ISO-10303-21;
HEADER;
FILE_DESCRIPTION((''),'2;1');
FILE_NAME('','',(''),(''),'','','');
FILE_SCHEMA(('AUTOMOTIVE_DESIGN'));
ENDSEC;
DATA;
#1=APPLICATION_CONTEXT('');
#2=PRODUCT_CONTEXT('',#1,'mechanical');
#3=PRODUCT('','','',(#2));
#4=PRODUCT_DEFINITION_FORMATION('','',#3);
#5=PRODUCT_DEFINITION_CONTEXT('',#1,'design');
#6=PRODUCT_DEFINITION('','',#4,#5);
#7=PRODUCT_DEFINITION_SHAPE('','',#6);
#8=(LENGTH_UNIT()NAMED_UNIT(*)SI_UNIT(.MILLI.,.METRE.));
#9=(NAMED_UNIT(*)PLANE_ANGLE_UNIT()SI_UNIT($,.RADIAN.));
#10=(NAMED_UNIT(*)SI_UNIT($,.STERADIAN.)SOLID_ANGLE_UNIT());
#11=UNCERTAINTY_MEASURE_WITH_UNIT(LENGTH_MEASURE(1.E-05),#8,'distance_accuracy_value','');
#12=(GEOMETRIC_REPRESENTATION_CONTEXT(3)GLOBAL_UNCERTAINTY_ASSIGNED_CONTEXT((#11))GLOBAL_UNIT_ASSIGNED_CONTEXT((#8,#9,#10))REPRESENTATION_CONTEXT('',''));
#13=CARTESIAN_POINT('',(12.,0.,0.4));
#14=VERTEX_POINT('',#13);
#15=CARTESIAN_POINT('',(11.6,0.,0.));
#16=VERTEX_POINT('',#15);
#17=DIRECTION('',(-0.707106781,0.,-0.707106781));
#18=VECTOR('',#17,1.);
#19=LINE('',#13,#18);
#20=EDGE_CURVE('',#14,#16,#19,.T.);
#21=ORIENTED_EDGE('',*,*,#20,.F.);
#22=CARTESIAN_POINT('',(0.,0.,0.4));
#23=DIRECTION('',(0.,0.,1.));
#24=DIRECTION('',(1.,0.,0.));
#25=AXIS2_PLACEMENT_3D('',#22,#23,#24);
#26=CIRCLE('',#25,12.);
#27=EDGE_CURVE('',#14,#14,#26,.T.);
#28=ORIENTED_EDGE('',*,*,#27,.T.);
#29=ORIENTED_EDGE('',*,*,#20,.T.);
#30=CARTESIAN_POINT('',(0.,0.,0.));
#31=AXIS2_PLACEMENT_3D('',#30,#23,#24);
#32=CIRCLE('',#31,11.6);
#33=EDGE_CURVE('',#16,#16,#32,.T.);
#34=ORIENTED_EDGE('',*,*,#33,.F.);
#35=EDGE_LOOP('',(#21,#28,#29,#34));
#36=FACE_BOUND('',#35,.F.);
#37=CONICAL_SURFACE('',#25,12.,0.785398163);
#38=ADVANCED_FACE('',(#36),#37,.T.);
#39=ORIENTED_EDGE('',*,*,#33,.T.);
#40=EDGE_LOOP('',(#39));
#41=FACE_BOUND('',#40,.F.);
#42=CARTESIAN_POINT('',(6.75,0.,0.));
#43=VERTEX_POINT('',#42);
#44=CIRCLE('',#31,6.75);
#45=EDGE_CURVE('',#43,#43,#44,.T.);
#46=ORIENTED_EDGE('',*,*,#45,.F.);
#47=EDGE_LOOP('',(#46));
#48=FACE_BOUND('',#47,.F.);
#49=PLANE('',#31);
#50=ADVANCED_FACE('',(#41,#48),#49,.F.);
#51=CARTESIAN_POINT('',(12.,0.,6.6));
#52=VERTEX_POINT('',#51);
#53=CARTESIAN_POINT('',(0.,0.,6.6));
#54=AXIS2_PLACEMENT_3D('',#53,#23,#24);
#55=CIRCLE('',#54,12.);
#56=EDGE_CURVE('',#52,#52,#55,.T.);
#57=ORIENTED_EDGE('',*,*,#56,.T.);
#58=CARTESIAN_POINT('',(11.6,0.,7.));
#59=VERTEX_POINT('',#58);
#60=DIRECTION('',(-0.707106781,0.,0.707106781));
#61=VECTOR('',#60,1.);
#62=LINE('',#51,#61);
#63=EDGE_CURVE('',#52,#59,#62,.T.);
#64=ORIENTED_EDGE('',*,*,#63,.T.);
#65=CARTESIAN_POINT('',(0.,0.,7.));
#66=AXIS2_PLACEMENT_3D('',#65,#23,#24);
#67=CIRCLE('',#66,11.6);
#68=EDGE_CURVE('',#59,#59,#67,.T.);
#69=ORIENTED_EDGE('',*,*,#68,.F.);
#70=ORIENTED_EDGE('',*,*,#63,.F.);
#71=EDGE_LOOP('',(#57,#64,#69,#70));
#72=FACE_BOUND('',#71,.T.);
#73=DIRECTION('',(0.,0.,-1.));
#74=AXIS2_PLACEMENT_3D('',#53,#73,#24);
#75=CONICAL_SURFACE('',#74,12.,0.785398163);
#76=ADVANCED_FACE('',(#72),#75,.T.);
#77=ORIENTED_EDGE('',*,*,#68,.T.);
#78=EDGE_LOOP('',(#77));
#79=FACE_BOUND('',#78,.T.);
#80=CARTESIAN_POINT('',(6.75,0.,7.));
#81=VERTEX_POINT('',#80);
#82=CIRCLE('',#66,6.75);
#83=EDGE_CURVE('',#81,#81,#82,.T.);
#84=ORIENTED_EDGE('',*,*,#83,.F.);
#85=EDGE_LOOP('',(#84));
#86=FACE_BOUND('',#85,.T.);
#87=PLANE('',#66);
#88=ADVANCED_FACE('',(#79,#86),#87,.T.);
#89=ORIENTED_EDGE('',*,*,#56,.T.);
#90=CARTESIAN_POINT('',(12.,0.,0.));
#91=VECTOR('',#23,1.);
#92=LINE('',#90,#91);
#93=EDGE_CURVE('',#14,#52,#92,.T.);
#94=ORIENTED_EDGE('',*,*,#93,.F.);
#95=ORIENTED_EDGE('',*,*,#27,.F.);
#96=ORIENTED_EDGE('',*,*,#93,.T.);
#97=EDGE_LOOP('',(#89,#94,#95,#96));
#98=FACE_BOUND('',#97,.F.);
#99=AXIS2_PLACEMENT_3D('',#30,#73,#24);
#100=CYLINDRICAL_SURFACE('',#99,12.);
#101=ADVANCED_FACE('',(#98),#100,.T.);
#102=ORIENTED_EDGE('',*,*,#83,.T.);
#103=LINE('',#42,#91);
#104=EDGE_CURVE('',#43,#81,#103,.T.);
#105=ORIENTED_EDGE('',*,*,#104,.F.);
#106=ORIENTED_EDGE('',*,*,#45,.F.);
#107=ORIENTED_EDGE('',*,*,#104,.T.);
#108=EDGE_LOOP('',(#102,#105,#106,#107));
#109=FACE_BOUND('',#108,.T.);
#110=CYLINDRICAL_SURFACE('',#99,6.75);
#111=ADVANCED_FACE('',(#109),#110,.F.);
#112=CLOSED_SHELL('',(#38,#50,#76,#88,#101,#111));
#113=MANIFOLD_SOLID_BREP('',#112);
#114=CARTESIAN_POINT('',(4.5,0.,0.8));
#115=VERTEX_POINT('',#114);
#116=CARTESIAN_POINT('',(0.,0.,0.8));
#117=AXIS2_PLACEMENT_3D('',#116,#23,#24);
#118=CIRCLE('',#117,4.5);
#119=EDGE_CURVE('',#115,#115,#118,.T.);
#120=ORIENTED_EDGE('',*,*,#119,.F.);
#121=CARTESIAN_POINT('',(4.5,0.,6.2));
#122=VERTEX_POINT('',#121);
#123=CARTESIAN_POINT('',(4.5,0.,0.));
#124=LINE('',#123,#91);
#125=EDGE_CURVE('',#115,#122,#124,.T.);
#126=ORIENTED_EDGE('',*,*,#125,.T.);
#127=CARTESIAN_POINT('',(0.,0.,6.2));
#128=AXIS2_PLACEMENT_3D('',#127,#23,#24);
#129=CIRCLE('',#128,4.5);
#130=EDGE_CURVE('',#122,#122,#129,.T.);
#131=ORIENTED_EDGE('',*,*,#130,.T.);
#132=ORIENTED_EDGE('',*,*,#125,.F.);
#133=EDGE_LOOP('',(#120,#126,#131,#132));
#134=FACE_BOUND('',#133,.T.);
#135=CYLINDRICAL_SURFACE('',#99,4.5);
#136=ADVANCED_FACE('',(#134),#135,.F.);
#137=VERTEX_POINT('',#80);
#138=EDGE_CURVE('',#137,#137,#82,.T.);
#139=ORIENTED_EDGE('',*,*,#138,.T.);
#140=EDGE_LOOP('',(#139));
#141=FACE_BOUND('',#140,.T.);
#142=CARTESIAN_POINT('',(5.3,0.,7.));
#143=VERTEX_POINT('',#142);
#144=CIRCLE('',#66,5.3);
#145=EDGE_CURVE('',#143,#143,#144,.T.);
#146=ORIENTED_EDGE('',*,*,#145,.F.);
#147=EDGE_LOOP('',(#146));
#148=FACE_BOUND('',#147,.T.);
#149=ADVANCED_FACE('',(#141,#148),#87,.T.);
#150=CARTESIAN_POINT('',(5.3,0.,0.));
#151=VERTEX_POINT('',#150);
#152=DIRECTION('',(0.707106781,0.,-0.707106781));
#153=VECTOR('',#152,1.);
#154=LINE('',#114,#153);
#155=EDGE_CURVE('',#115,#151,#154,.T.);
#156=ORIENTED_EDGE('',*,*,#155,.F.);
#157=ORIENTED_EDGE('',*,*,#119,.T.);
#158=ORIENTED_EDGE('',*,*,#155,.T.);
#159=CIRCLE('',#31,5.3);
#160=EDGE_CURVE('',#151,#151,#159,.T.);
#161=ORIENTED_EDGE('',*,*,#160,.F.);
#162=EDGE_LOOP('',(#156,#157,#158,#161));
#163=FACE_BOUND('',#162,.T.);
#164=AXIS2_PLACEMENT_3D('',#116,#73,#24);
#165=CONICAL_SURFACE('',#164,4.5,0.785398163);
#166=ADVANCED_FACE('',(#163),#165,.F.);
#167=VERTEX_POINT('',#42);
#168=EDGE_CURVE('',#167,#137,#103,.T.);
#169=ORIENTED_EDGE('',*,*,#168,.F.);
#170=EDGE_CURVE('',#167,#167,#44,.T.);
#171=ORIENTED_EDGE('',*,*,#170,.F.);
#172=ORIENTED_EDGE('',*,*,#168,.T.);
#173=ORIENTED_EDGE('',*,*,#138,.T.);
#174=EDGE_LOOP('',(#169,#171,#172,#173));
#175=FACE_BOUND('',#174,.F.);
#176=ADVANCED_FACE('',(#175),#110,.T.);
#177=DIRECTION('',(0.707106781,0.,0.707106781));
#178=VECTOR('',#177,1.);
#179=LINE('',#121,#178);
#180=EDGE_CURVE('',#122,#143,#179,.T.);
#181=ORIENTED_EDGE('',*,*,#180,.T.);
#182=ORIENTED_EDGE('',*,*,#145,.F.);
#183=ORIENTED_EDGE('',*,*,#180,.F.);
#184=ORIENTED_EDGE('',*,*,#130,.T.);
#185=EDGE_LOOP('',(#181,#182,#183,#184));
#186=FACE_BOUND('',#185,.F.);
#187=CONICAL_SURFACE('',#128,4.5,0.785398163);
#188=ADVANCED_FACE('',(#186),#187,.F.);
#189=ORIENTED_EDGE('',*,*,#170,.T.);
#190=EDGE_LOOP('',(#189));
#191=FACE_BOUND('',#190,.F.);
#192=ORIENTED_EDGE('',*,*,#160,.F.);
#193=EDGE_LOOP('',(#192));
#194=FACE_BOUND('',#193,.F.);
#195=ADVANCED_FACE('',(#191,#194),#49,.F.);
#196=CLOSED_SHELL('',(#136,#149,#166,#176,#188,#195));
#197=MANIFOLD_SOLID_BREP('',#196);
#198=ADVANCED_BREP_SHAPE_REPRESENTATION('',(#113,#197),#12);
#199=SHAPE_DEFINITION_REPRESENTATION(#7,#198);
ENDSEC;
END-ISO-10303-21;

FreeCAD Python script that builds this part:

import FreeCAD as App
import Part
import Sketcher
from FreeCAD import Vector
Q = App.Units.Quantity


def edges_at(feature, points):
    """Names of the edges that pass closest to the given points."""
    edges = feature.Shape.Edges
    near = lambda p: min(range(len(edges)), key=lambda i: edges[i].distToShape(Part.Vertex(*p))[0])
    return sorted({f"Edge{near(p) + 1}" for p in points})

doc = App.newDocument("Part")
params = doc.addObject("Spreadsheet::Sheet", "Params")
for row, (alias, value) in enumerate([
    ("sketch1_diameter", "24 mm"),
    ("sketch1_diameter2", "13.5 mm"),
    ("pad1_length", "7 mm"),
    ("chamfer_size", "0.4 mm"),
    ("sketch2_diameter", "9 mm"),
    ("sketch2_diameter2", "13.5 mm"),
    ("pad2_length", "7 mm"),
    ("chamfer2_size", "0.8 mm"),
], start=1):
    params.set(f"A{row}", alias)
    params.set(f"B{row}", "=" + value)
    params.setAlias(f"B{row}", alias)

body = doc.addObject("PartDesign::Body", "Body")

# Sketch on XY plane
sketch1 = doc.addObject("Sketcher::SketchObject", "Sketch")
body.addObject(sketch1)
sketch1.AttachmentSupport = (doc.XY_Plane, [""])
sketch1.MapMode = "FlatFace"
sketch1.addGeometry([
    Part.Circle(Vector(0, 0, 0), Vector(0, 0, 1), 12),
    Part.Circle(Vector(0, 0, 0), Vector(0, 0, 1), 7),
], False)
sketch1.addConstraint([
    Sketcher.Constraint("Coincident", 0, 3, -1, 1),
    Sketcher.Constraint("Coincident", 1, 3, -1, 1),
    Sketcher.Constraint("Diameter", 0, Q("24 mm")),
    Sketcher.Constraint("Diameter", 1, Q("13.5 mm")),
])
sketch1.setExpression("Constraints[2]", "Params.sketch1_diameter")
sketch1.setExpression("Constraints[3]", "Params.sketch1_diameter2")
pad1 = doc.addObject("PartDesign::Pad", "Pad")
body.addObject(pad1)
pad1.Profile = sketch1
pad1.setExpression("Length", "Params.pad1_length")
doc.recompute()

chamfer = doc.addObject("PartDesign::Chamfer", "Chamfer")
body.addObject(chamfer)
chamfer.Base = (pad1, edges_at(pad1, [(-12, 0, 7), (-12, 0, 0)]))
chamfer.setExpression("Size", "Params.chamfer_size")
body2 = doc.addObject("PartDesign::Body", "Body001")

# Sketch on XY plane
sketch2 = doc.addObject("Sketcher::SketchObject", "Sketch001")
body2.addObject(sketch2)
sketch2.AttachmentSupport = (doc.getObject("XY_Plane001"), [""])
sketch2.MapMode = "FlatFace"
sketch2.addGeometry([
    Part.Circle(Vector(0, 0, 0), Vector(0, 0, 1), 6.8),
    Part.Circle(Vector(0, 0, 0), Vector(0, 0, 1), 4.5),
], False)
sketch2.addConstraint([
    Sketcher.Constraint("Coincident", 0, 3, -1, 1),
    Sketcher.Constraint("Coincident", 1, 3, -1, 1),
    Sketcher.Constraint("Diameter", 1, Q("9 mm")),
    Sketcher.Constraint("Diameter", 0, Q("13.5 mm")),
])
sketch2.setExpression("Constraints[2]", "Params.sketch2_diameter")
sketch2.setExpression("Constraints[3]", "Params.sketch2_diameter2")
pad2 = doc.addObject("PartDesign::Pad", "Pad001")
body2.addObject(pad2)
pad2.Profile = sketch2
pad2.setExpression("Length", "Params.pad2_length")
doc.recompute()

chamfer2 = doc.addObject("PartDesign::Chamfer", "Chamfer001")
body2.addObject(chamfer2)
chamfer2.Base = (pad2, edges_at(pad2, [(-4.5, 0, 7), (-4.5, 0, 0)]))
chamfer2.setExpression("Size", "Params.chamfer2_size")

doc.recompute()
